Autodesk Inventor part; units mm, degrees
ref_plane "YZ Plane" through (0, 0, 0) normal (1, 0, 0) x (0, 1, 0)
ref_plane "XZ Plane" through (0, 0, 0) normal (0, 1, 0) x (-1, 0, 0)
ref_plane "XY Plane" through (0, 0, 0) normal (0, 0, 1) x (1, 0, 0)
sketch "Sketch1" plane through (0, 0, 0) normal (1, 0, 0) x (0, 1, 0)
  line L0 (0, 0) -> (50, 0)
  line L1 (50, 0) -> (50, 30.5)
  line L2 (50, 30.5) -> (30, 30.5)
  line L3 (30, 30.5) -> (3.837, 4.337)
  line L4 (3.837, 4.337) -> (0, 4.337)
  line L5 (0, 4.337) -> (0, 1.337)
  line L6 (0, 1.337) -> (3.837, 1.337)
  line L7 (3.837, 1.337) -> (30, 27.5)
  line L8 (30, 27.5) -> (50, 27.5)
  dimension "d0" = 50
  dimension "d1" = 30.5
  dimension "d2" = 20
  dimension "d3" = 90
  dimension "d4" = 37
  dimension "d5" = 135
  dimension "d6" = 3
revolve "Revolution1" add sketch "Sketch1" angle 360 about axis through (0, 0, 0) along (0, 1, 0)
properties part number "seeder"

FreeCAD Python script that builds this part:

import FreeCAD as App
import Part
import Sketcher

V = App.Vector
Q = App.Units.Quantity


def add_polygon(sketch, points):
    """Adds a closed chain of lines whose ends are joined by coincident constraints."""
    first, n = sketch.GeometryCount, len(points)
    for a, b in zip(points, points[1:] + points[:1]):
        sketch.addGeometry(Part.LineSegment(App.Vector(*a, 0), App.Vector(*b, 0)), False)
    for i in range(n):
        sketch.addConstraint(Sketcher.Constraint("Coincident", first + i, 2, first + (i + 1) % n, 1))

doc = App.newDocument("Part")
params = doc.addObject("Spreadsheet::Sheet", "Params")
for row, (alias, value) in enumerate([
    ("sketch1_width", "20 mm"),
    ("sketch1_height", "3 mm"),
    ("sketch1_length", "37 mm"),
    ("revolution_angle", "360 deg"),
], start=1):
    params.set(f"A{row}", alias)
    params.set(f"B{row}", "=" + value)
    params.setAlias(f"B{row}", alias)

body = doc.addObject("PartDesign::Body", "Body")

sketch1 = doc.addObject("Sketcher::SketchObject", "Sketch")
body.addObject(sketch1)
sketch1.AttachmentSupport = (doc.YZ_Plane, [""])
sketch1.MapMode = "FlatFace"
add_polygon(sketch1, [(30, 27.5), (50, 27.5), (50, 30.5), (30, 30.5), (3.8, 4.3), (0, 4.3), (0, 1.3), (3.8, 1.3)])
sketch1.addConstraint(Sketcher.Constraint("Horizontal", 0))
sketch1.addConstraint(Sketcher.Constraint("Vertical", 1))
sketch1.addConstraint(Sketcher.Constraint("Horizontal", 2))
sketch1.addConstraint(Sketcher.Constraint("Horizontal", 4))
sketch1.addConstraint(Sketcher.Constraint("Vertical", 5))
sketch1.addConstraint(Sketcher.Constraint("Horizontal", 6))
sketch1.addConstraint(Sketcher.Constraint("PointOnObject", 4, 2, -2))
sketch1.addConstraint(Sketcher.Constraint("Parallel", 3, 7))
sketch1.addConstraint(Sketcher.Constraint("Vertical", 3, 2, 6, 2))
sketch1.addConstraint(Sketcher.Constraint("Vertical", 2, 2, 7, 2))
sketch1.addConstraint(Sketcher.Constraint("DistanceX", 0, 1, 0, 2, 20.0))
sketch1.addConstraint(Sketcher.Constraint("DistanceY", 1, 1, 1, 2, 3.0))
sketch1.addConstraint(Sketcher.Constraint("Angle", 3, Q("-135 deg")))
sketch1.addConstraint(Sketcher.Constraint("Distance", 3, 37.0))
sketch1.addConstraint(Sketcher.Constraint("DistanceX", -1, 1, 0, 2, 50.0))
sketch1.addConstraint(Sketcher.Constraint("DistanceY", -1, 1, 1, 2, 30.5))
sketch1.setExpression("Constraints[18]", "Params.sketch1_width")
sketch1.setExpression("Constraints[19]", "Params.sketch1_height")
sketch1.setExpression("Constraints[21]", "Params.sketch1_length")
revolution = doc.addObject("PartDesign::Revolution", "Revolution")
body.addObject(revolution)
revolution.Profile = sketch1
revolution.ReferenceAxis = (sketch1, ["H_Axis"])
revolution.setExpression("Angle", "Params.revolution_angle")

doc.recompute()
